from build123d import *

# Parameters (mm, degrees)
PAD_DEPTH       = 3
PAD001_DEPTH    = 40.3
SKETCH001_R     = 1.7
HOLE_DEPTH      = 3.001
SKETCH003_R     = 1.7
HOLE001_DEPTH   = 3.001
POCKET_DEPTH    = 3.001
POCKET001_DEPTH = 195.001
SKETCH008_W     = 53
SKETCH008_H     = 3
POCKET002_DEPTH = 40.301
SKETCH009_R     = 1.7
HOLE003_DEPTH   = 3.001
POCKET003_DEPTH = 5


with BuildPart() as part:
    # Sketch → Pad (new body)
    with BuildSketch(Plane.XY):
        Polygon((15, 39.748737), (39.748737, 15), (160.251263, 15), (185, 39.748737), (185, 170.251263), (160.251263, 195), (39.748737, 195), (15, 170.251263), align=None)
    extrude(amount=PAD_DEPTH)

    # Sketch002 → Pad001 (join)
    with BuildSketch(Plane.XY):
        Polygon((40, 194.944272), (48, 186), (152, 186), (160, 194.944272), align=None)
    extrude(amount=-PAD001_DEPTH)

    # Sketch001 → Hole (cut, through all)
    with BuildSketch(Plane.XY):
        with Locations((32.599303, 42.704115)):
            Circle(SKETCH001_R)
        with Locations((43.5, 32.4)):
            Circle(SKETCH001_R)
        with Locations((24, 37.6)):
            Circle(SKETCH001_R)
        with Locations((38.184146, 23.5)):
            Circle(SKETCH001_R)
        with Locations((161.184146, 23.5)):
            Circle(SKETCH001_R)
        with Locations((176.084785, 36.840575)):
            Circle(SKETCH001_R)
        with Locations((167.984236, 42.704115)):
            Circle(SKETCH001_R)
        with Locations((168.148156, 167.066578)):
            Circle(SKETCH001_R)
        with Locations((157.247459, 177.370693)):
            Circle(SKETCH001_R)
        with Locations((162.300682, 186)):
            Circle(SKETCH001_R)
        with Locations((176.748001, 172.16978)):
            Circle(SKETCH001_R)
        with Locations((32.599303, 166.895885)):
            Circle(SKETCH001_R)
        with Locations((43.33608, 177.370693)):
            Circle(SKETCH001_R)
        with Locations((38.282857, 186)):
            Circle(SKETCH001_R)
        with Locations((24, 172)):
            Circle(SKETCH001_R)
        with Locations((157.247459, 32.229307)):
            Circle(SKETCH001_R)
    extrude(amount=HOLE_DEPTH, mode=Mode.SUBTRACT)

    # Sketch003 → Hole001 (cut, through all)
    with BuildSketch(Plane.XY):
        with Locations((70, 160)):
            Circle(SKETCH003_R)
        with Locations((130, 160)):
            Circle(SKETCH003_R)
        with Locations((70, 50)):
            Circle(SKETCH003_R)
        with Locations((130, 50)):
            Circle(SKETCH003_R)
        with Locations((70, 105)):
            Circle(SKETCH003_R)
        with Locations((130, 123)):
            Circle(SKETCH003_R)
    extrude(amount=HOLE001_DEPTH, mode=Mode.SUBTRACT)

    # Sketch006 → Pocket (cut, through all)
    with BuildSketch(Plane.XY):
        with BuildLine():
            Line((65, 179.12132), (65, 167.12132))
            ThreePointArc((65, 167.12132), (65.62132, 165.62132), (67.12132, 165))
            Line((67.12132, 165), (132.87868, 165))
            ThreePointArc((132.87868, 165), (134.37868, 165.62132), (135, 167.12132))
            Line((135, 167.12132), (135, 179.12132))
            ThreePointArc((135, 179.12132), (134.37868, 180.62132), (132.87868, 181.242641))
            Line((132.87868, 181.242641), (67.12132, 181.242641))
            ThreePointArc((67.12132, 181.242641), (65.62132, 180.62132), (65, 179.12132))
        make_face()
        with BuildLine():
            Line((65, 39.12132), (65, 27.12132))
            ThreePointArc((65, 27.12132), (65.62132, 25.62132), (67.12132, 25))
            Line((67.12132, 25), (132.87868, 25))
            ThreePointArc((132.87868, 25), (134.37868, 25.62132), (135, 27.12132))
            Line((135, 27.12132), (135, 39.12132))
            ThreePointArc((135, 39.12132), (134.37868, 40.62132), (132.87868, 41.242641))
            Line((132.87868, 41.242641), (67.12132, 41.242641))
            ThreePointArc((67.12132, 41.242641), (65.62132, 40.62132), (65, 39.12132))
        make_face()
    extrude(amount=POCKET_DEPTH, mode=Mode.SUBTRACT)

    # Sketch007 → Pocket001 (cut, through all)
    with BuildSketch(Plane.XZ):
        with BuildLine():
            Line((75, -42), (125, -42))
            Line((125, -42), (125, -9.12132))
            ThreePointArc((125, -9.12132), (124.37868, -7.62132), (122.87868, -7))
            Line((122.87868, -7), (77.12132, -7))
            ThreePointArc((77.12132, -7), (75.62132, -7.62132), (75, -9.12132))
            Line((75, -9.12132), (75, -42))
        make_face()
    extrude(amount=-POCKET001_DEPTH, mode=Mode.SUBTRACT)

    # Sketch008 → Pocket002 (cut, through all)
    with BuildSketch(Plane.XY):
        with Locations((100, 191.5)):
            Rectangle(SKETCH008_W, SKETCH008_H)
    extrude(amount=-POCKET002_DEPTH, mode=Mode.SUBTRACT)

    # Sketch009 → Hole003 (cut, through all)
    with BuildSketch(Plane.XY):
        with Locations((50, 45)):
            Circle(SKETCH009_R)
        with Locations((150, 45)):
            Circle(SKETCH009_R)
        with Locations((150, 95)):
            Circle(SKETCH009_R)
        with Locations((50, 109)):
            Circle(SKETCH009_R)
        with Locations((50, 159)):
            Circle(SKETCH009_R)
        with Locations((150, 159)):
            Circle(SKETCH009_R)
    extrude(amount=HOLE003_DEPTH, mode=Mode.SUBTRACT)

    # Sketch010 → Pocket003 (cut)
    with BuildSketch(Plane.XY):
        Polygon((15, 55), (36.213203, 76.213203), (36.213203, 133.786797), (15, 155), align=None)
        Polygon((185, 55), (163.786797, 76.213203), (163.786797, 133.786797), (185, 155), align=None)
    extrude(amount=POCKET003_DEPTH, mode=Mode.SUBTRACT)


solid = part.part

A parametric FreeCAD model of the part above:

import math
import FreeCAD as App
import Part
import Sketcher
Q = App.Units.Quantity


def add_polygon(sketch, points):
    """Adds a closed chain of lines whose ends are joined by coincident constraints."""
    first, n = sketch.GeometryCount, len(points)
    for a, b in zip(points, points[1:] + points[:1]):
        sketch.addGeometry(Part.LineSegment(App.Vector(*a, 0), App.Vector(*b, 0)), False)
    for i in range(n):
        sketch.addConstraint(Sketcher.Constraint("Coincident", first + i, 2, first + (i + 1) % n, 1))

doc = App.newDocument("Part")
body = doc.addObject("PartDesign::Body", "Body")

# Sketch on XY plane
sketch1 = body.newObject("Sketcher::SketchObject", "Sketch")
sketch1.AttachmentSupport = (doc.getObject("XY_Plane"), [""])
sketch1.MapMode = "FlatFace"
add_polygon(sketch1, [(15, 40), (40, 15), (160, 15), (185, 40), (185, 170), (160, 195), (40, 195), (15, 170)])  # lines 0-7
sketch1.addConstraint(Sketcher.Constraint("Horizontal", 1))
sketch1.addConstraint(Sketcher.Constraint("Vertical", 3))
sketch1.addConstraint(Sketcher.Constraint("Horizontal", 5))
sketch1.addConstraint(Sketcher.Constraint("Vertical", 7))
sketch1.addConstraint(Sketcher.Constraint("Perpendicular", 0, 2))
sketch1.addConstraint(Sketcher.Constraint("Perpendicular", 2, 4))
sketch1.addConstraint(Sketcher.Constraint("Perpendicular", 4, 6))
sketch1.addConstraint(Sketcher.Constraint("Horizontal", 3, 2, 6, 2))
sketch1.addConstraint(Sketcher.Constraint("Horizontal", 2, 2, 7, 2))
sketch1.addConstraint(Sketcher.Constraint("Vertical", 1, 2, 4, 2))
sketch1.addConstraint(Sketcher.Constraint("Vertical", 0, 2, 5, 2))
sketch1.addConstraint(Sketcher.Constraint("Distance", 0, Q("35 mm")))
sketch1.addConstraint(Sketcher.Constraint("DistanceY", -1, 1, 0, 2, Q("15 mm")))
sketch1.addConstraint(Sketcher.Constraint("DistanceX", -1, 1, 2, 2, Q("185 mm")))
sketch1.addConstraint(Sketcher.Constraint("DistanceY", -1, 1, 4, 2, Q("195 mm")))
sketch1.addConstraint(Sketcher.Constraint("DistanceX", -1, 1, 6, 2, Q("15 mm")))
pad1 = body.newObject("PartDesign::Pad", "Pad")
pad1.Profile = sketch1
pad1.Length = 3

# Sketch on XY plane
sketch2 = body.newObject("Sketcher::SketchObject", "Sketch001")
sketch2.AttachmentSupport = (doc.getObject("XY_Plane"), [""])
sketch2.MapMode = "FlatFace"
add_polygon(sketch2, [(40, 195), (48, 186), (152, 186), (160, 195)])  # lines 0-3
sketch2.addConstraint(Sketcher.Constraint("Horizontal", 1))
sketch2.addConstraint(Sketcher.Constraint("Horizontal", 3))
sketch2.addConstraint(Sketcher.Constraint("Equal", 0, 2))
sketch2.addConstraint(Sketcher.Constraint("DistanceX", 1, 1, 1, 2, Q("104 mm")))
sketch2.addConstraint(Sketcher.Constraint("DistanceX", 3, 2, 3, 1, Q("120 mm")))
sketch2.addConstraint(Sketcher.Constraint("Distance", 0, Q("12 mm")))
sketch2.addConstraint(Sketcher.Constraint("DistanceX", -1, 1, 0, 2, Q("48 mm")))
sketch2.addConstraint(Sketcher.Constraint("DistanceY", -1, 1, 0, 2, Q("186 mm")))
pad2 = body.newObject("PartDesign::Pad", "Pad001")
pad2.Profile = sketch2
pad2.Length = 40.3
pad2.Reversed = True

# Sketch on XY plane
sketch3 = body.newObject("Sketcher::SketchObject", "Sketch002")
sketch3.AttachmentSupport = (doc.getObject("XY_Plane"), [""])
sketch3.MapMode = "FlatFace"
sketch3.addGeometry(Part.Circle(App.Vector(32.6, 42.7, 0), App.Vector(0, 0, 1), 1.7), False)
sketch3.addGeometry(Part.Circle(App.Vector(43.5, 32.4, 0), App.Vector(0, 0, 1), 1.7), False)
sketch3.addGeometry(Part.Circle(App.Vector(24, 37.6, 0), App.Vector(0, 0, 1), 1.7), False)
sketch3.addGeometry(Part.Circle(App.Vector(38.2, 23.5, 0), App.Vector(0, 0, 1), 1.7), False)
sketch3.addGeometry(Part.Circle(App.Vector(161.2, 23.5, 0), App.Vector(0, 0, 1), 1.7), False)
sketch3.addGeometry(Part.Circle(App.Vector(176.1, 36.8, 0), App.Vector(0, 0, 1), 1.7), False)
sketch3.addGeometry(Part.Circle(App.Vector(168, 42.7, 0), App.Vector(0, 0, 1), 1.7), False)
sketch3.addGeometry(Part.Circle(App.Vector(168.1, 167.1, 0), App.Vector(0, 0, 1), 1.7), False)
sketch3.addGeometry(Part.Circle(App.Vector(157.2, 177.4, 0), App.Vector(0, 0, 1), 1.7), False)
sketch3.addGeometry(Part.Circle(App.Vector(162.3, 186, 0), App.Vector(0, 0, 1), 1.7), False)
sketch3.addGeometry(Part.Circle(App.Vector(176.7, 172.2, 0), App.Vector(0, 0, 1), 1.7), False)
sketch3.addGeometry(Part.Circle(App.Vector(32.6, 166.9, 0), App.Vector(0, 0, 1), 1.7), False)
sketch3.addGeometry(Part.Circle(App.Vector(43.3, 177.4, 0), App.Vector(0, 0, 1), 1.7), False)
sketch3.addGeometry(Part.Circle(App.Vector(38.3, 186, 0), App.Vector(0, 0, 1), 1.7), False)
sketch3.addGeometry(Part.Circle(App.Vector(24, 172, 0), App.Vector(0, 0, 1), 1.7), False)
sketch3.addGeometry(Part.Circle(App.Vector(157.2, 32.2, 0), App.Vector(0, 0, 1), 1.7), False)
sketch3.addConstraint(Sketcher.Constraint("Equal", 0, 1))
sketch3.addConstraint(Sketcher.Constraint("Equal", 1, 2))
sketch3.addConstraint(Sketcher.Constraint("Equal", 2, 3))
sketch3.addConstraint(Sketcher.Constraint("Equal", 3, 4))
sketch3.addConstraint(Sketcher.Constraint("Equal", 4, 5))
sketch3.addConstraint(Sketcher.Constraint("Equal", 5, 6))
sketch3.addConstraint(Sketcher.Constraint("Equal", 6, 7))
sketch3.addConstraint(Sketcher.Constraint("Equal", 7, 8))
sketch3.addConstraint(Sketcher.Constraint("Equal", 8, 9))
sketch3.addConstraint(Sketcher.Constraint("Equal", 9, 10))
sketch3.addConstraint(Sketcher.Constraint("Equal", 10, 11))
sketch3.addConstraint(Sketcher.Constraint("Equal", 11, 12))
sketch3.addConstraint(Sketcher.Constraint("Equal", 12, 13))
sketch3.addConstraint(Sketcher.Constraint("Equal", 13, 14))
sketch3.addConstraint(Sketcher.Constraint("Equal", 14, 15))
sketch3.addConstraint(Sketcher.Constraint("Horizontal", 3, 3, 4, 3))
sketch3.addConstraint(Sketcher.Constraint("Horizontal", 0, 3, 6, 3))
sketch3.addConstraint(Sketcher.Constraint("Horizontal", 8, 3, 12, 3))
sketch3.addConstraint(Sketcher.Constraint("Horizontal", 9, 3, 13, 3))
sketch3.addConstraint(Sketcher.Constraint("Vertical", 0, 3, 11, 3))
sketch3.addConstraint(Sketcher.Constraint("Vertical", 2, 3, 14, 3))
sketch3.addConstraint(Sketcher.Constraint("Vertical", 8, 3, 15, 3))
sketch3.addConstraint(Sketcher.Constraint("Diameter", 0, Q("3.4 mm")))
sketch3.addConstraint(Sketcher.Constraint("DistanceX", -1, 1, 2, 3, Q("24 mm")))
sketch3.addConstraint(Sketcher.Constraint("DistanceY", -1, 1, 9, 3, Q("186 mm")))
sketch3.addConstraint(Sketcher.Constraint("DistanceY", -1, 1, 14, 3, Q("172 mm")))
sketch3.addConstraint(Sketcher.Constraint("DistanceX", 3, 3, 4, 3, Q("123 mm")))
sketch3.addConstraint(Sketcher.Constraint("DistanceX", -1, 1, 1, 3, Q("43.5 mm")))
sketch3.addConstraint(Sketcher.Constraint("DistanceY", -1, 1, 1, 3, Q("32.4 mm")))
sketch3.addConstraint(Sketcher.Constraint("DistanceY", -1, 1, 2, 3, Q("37.6 mm")))
sketch3.addConstraint(Sketcher.Constraint("DistanceY", -1, 1, 3, 3, Q("23.5 mm")))
sketch3.addConstraint(Sketcher.Constraint("DistanceX", -1, 1, 10, 3, Q("176.748001 mm")))
sketch3.addConstraint(Sketcher.Constraint("DistanceX", 12, 3, 9, 3, Q("118.964602 mm")))
sketch3.addConstraint(Sketcher.Constraint("DistanceX", 13, 3, 8, 3, Q("118.964602 mm")))
sketch3.addConstraint(Sketcher.Constraint("DistanceX", 13, 3, 7, 3, Q("129.865299 mm")))
sketch3.addConstraint(Sketcher.Constraint("DistanceY", -1, 1, 7, 3, Q("167.066578 mm")))
sketch3.addConstraint(Sketcher.Constraint("DistanceX", -1, 1, 8, 3, Q("157.247459 mm")))
sketch3.addConstraint(Sketcher.Constraint("DistanceX", -1, 1, 9, 3, Q("162.300682 mm")))
sketch3.addConstraint(Sketcher.Constraint("DistanceY", -1, 1, 10, 3, Q("172.16978 mm")))
sketch3.addConstraint(Sketcher.Constraint("DistanceX", 4, 3, 5, 3, Q("14.900639 mm")))
sketch3.addConstraint(Sketcher.Constraint("DistanceY", 5, 3, 0, 3, Q("5.86354 mm")))
sketch3.addConstraint(Sketcher.Constraint("DistanceX", 6, 3, 5, 3, Q("8.100549 mm")))
sketch3.addConstraint(Sketcher.Constraint("DistanceX", 6, 3, 7, 3, Q("0.16392 mm")))
sketch3.addConstraint(Sketcher.Constraint("DistanceY", 0, 3, 11, 3, Q("124.19177 mm")))
sketch3.addConstraint(Sketcher.Constraint("DistanceX", 11, 3, 9, 3, Q("129.701379 mm")))
sketch3.addConstraint(Sketcher.Constraint("DistanceY", 15, 3, 6, 3, Q("10.474808 mm")))
sketch3.addConstraint(Sketcher.Constraint("DistanceY", -1, 1, 0, 3, Q("42.704115 mm")))
sketch3.addConstraint(Sketcher.Constraint("DistanceY", -1, 1, 8, 3, Q("177.370693 mm")))
pocket1 = body.newObject("PartDesign::Pocket", "Pocket")
pocket1.Profile = sketch3
pocket1.Type = "ThroughAll"
pocket1.Reversed = True

# Sketch on XY plane
sketch4 = body.newObject("Sketcher::SketchObject", "Sketch003")
sketch4.AttachmentSupport = (doc.getObject("XY_Plane"), [""])
sketch4.MapMode = "FlatFace"
sketch4.addGeometry(Part.Circle(App.Vector(70, 160, 0), App.Vector(0, 0, 1), 1.7), False)
sketch4.addGeometry(Part.Circle(App.Vector(130, 160, 0), App.Vector(0, 0, 1), 1.7), False)
sketch4.addGeometry(Part.Circle(App.Vector(70, 50, 0), App.Vector(0, 0, 1), 1.7), False)
sketch4.addGeometry(Part.Circle(App.Vector(130, 50, 0), App.Vector(0, 0, 1), 1.7), False)
sketch4.addGeometry(Part.Circle(App.Vector(70, 105, 0), App.Vector(0, 0, 1), 1.7), False)
sketch4.addGeometry(Part.Circle(App.Vector(130, 123, 0), App.Vector(0, 0, 1), 1.7), False)
sketch4.addConstraint(Sketcher.Constraint("Equal", 0, 1))
sketch4.addConstraint(Sketcher.Constraint("Equal", 1, 2))
sketch4.addConstraint(Sketcher.Constraint("Equal", 2, 3))
sketch4.addConstraint(Sketcher.Constraint("Equal", 3, 4))
sketch4.addConstraint(Sketcher.Constraint("Equal", 4, 5))
sketch4.addConstraint(Sketcher.Constraint("Horizontal", 0, 3, 1, 3))
sketch4.addConstraint(Sketcher.Constraint("Horizontal", 2, 3, 3, 3))
sketch4.addConstraint(Sketcher.Constraint("Vertical", 0, 3, 2, 3))
sketch4.addConstraint(Sketcher.Constraint("Vertical", 1, 3, 3, 3))
sketch4.addConstraint(Sketcher.Constraint("Vertical", 2, 3, 4, 3))
sketch4.addConstraint(Sketcher.Constraint("Vertical", 3, 3, 5, 3))
sketch4.addConstraint(Sketcher.Constraint("Diameter", 0, Q("3.4 mm")))
sketch4.addConstraint(Sketcher.Constraint("DistanceX", -1, 1, 0, 3, Q("70 mm")))
sketch4.addConstraint(Sketcher.Constraint("DistanceY", -1, 1, 0, 3, Q("160 mm")))
sketch4.addConstraint(Sketcher.Constraint("DistanceX", -1, 1, 1, 3, Q("130 mm")))
sketch4.addConstraint(Sketcher.Constraint("DistanceY", -1, 1, 2, 3, Q("50 mm")))
sketch4.addConstraint(Sketcher.Constraint("DistanceY", -1, 1, 4, 3, Q("105 mm")))
sketch4.addConstraint(Sketcher.Constraint("DistanceY", -1, 1, 5, 3, Q("123 mm")))
pocket2 = body.newObject("PartDesign::Pocket", "Pocket001")
pocket2.Profile = sketch4
pocket2.Type = "ThroughAll"
pocket2.Reversed = True

# Sketch on XY plane
sketch5 = body.newObject("Sketcher::SketchObject", "Sketch004")
sketch5.AttachmentSupport = (doc.getObject("XY_Plane"), [""])
sketch5.MapMode = "FlatFace"
sketch5.addGeometry(Part.LineSegment(App.Vector(65, 179.1, 0), App.Vector(65, 167.1, 0)), False)
sketch5.addGeometry(Part.ArcOfCircle(Part.Circle(App.Vector(67.1, 167.1, 0), App.Vector(0, 0, 1), 2.1), math.radians(180), math.radians(270)), False)
sketch5.addGeometry(Part.LineSegment(App.Vector(67.1, 165, 0), App.Vector(132.9, 165, 0)), False)
sketch5.addGeometry(Part.ArcOfCircle(Part.Circle(App.Vector(132.9, 167.1, 0), App.Vector(0, 0, 1), 2.1), math.radians(-90), math.radians(0)), False)
sketch5.addGeometry(Part.LineSegment(App.Vector(135, 167.1, 0), App.Vector(135, 179.1, 0)), False)
sketch5.addGeometry(Part.ArcOfCircle(Part.Circle(App.Vector(132.9, 179.1, 0), App.Vector(0, 0, 1), 2.1), math.radians(0), math.radians(90)), False)
sketch5.addGeometry(Part.LineSegment(App.Vector(132.9, 181.2, 0), App.Vector(67.1, 181.2, 0)), False)
sketch5.addGeometry(Part.ArcOfCircle(Part.Circle(App.Vector(67.1, 179.1, 0), App.Vector(0, 0, 1), 2.1), math.radians(90), math.radians(180)), False)
sketch5.addGeometry(Part.LineSegment(App.Vector(65, 39.1, 0), App.Vector(65, 27.1, 0)), False)
sketch5.addGeometry(Part.ArcOfCircle(Part.Circle(App.Vector(67.1, 27.1, 0), App.Vector(0, 0, 1), 2.1), math.radians(180), math.radians(270)), False)
sketch5.addGeometry(Part.LineSegment(App.Vector(67.1, 25, 0), App.Vector(132.9, 25, 0)), False)
sketch5.addGeometry(Part.ArcOfCircle(Part.Circle(App.Vector(132.9, 27.1, 0), App.Vector(0, 0, 1), 2.1), math.radians(-90), math.radians(0)), False)
sketch5.addGeometry(Part.LineSegment(App.Vector(135, 27.1, 0), App.Vector(135, 39.1, 0)), False)
sketch5.addGeometry(Part.ArcOfCircle(Part.Circle(App.Vector(132.9, 39.1, 0), App.Vector(0, 0, 1), 2.1), math.radians(0), math.radians(90)), False)
sketch5.addGeometry(Part.LineSegment(App.Vector(132.9, 41.2, 0), App.Vector(67.1, 41.2, 0)), False)
sketch5.addGeometry(Part.ArcOfCircle(Part.Circle(App.Vector(67.1, 39.1, 0), App.Vector(0, 0, 1), 2.1), math.radians(90), math.radians(180)), False)
sketch5.addConstraint(Sketcher.Constraint("Tangent", 0, 2, 1, 1))
sketch5.addConstraint(Sketcher.Constraint("Tangent", 1, 2, 2, 1))
sketch5.addConstraint(Sketcher.Constraint("Tangent", 2, 2, 3, 1))
sketch5.addConstraint(Sketcher.Constraint("Tangent", 3, 2, 4, 1))
sketch5.addConstraint(Sketcher.Constraint("Tangent", 4, 2, 5, 1))
sketch5.addConstraint(Sketcher.Constraint("Tangent", 5, 2, 6, 1))
sketch5.addConstraint(Sketcher.Constraint("Tangent", 6, 2, 7, 1))
sketch5.addConstraint(Sketcher.Constraint("Tangent", 7, 2, 0, 1))
sketch5.addConstraint(Sketcher.Constraint("Tangent", 8, 2, 9, 1))
sketch5.addConstraint(Sketcher.Constraint("Tangent", 9, 2, 10, 1))
sketch5.addConstraint(Sketcher.Constraint("Tangent", 10, 2, 11, 1))
sketch5.addConstraint(Sketcher.Constraint("Tangent", 11, 2, 12, 1))
sketch5.addConstraint(Sketcher.Constraint("Tangent", 12, 2, 13, 1))
sketch5.addConstraint(Sketcher.Constraint("Tangent", 13, 2, 14, 1))
sketch5.addConstraint(Sketcher.Constraint("Tangent", 14, 2, 15, 1))
sketch5.addConstraint(Sketcher.Constraint("Tangent", 15, 2, 8, 1))
sketch5.addConstraint(Sketcher.Constraint("Vertical", 0))
sketch5.addConstraint(Sketcher.Constraint("Horizontal", 2))
sketch5.addConstraint(Sketcher.Constraint("Vertical", 4))
sketch5.addConstraint(Sketcher.Constraint("Horizontal", 6))
sketch5.addConstraint(Sketcher.Constraint("Vertical", 8))
sketch5.addConstraint(Sketcher.Constraint("Horizontal", 10))
sketch5.addConstraint(Sketcher.Constraint("Vertical", 12))
sketch5.addConstraint(Sketcher.Constraint("Horizontal", 14))
sketch5.addConstraint(Sketcher.Constraint("Equal", 1, 3))
sketch5.addConstraint(Sketcher.Constraint("Equal", 3, 5))
sketch5.addConstraint(Sketcher.Constraint("Equal", 5, 7))
sketch5.addConstraint(Sketcher.Constraint("Equal", 7, 9))
sketch5.addConstraint(Sketcher.Constraint("Equal", 9, 11))
sketch5.addConstraint(Sketcher.Constraint("Equal", 11, 13))
sketch5.addConstraint(Sketcher.Constraint("Equal", 13, 15))
sketch5.addConstraint(Sketcher.Constraint("Vertical", 7, 3, 9, 3))
sketch5.addConstraint(Sketcher.Constraint("Vertical", 5, 3, 11, 3))
sketch5.addConstraint(Sketcher.Constraint("Equal", 4, 8))
sketch5.addConstraint(Sketcher.Constraint("DistanceY", 0, 2, 0, 1, Q("12 mm")))
sketch5.addConstraint(Sketcher.Constraint("DistanceX", -1, 1, 0, 2, Q("65 mm")))
sketch5.addConstraint(Sketcher.Constraint("DistanceY", -1, 1, 1, 2, Q("165 mm")))
sketch5.addConstraint(Sketcher.Constraint("DistanceX", -1, 1, 3, 2, Q("135 mm")))
sketch5.addConstraint(Sketcher.Constraint("DistanceY", -1, 1, 9, 2, Q("25 mm")))
sketch5.addConstraint(Sketcher.Constraint("Radius", 1, Q("2.121319 mm")))
pocket3 = body.newObject("PartDesign::Pocket", "Pocket002")
pocket3.Profile = sketch5
pocket3.Type = "ThroughAll"
pocket3.Reversed = True

# Sketch on XZ plane
sketch6 = body.newObject("Sketcher::SketchObject", "Sketch005")
sketch6.AttachmentSupport = (doc.getObject("XZ_Plane"), [""])
sketch6.MapMode = "FlatFace"
sketch6.addGeometry(Part.LineSegment(App.Vector(75, -42, 0), App.Vector(125, -42, 0)), False)
sketch6.addGeometry(Part.LineSegment(App.Vector(125, -42, 0), App.Vector(125, -9.1, 0)), False)
sketch6.addGeometry(Part.ArcOfCircle(Part.Circle(App.Vector(122.9, -9.1, 0), App.Vector(0, 0, 1), 2.1), math.radians(0), math.radians(90)), False)
sketch6.addGeometry(Part.LineSegment(App.Vector(122.9, -7, 0), App.Vector(77.1, -7, 0)), False)
sketch6.addGeometry(Part.ArcOfCircle(Part.Circle(App.Vector(77.1, -9.1, 0), App.Vector(0, 0, 1), 2.1), math.radians(90), math.radians(180)), False)
sketch6.addGeometry(Part.LineSegment(App.Vector(75, -9.1, 0), App.Vector(75, -42, 0)), False)
sketch6.addConstraint(Sketcher.Constraint("Coincident", 0, 2, 1, 1))
sketch6.addConstraint(Sketcher.Constraint("Tangent", 1, 2, 2, 1))
sketch6.addConstraint(Sketcher.Constraint("Tangent", 2, 2, 3, 1))
sketch6.addConstraint(Sketcher.Constraint("Tangent", 3, 2, 4, 1))
sketch6.addConstraint(Sketcher.Constraint("Tangent", 4, 2, 5, 1))
sketch6.addConstraint(Sketcher.Constraint("Coincident", 5, 2, 0, 1))
sketch6.addConstraint(Sketcher.Constraint("Horizontal", 0))
sketch6.addConstraint(Sketcher.Constraint("Vertical", 1))
sketch6.addConstraint(Sketcher.Constraint("Horizontal", 3))
sketch6.addConstraint(Sketcher.Constraint("Vertical", 5))
sketch6.addConstraint(Sketcher.Constraint("Equal", 2, 4))
sketch6.addConstraint(Sketcher.Constraint("DistanceX", 0, 1, 0, 2, Q("50 mm")))
sketch6.addConstraint(Sketcher.Constraint("DistanceX", -1, 1, 0, 2, Q("125 mm")))
sketch6.addConstraint(Sketcher.Constraint("DistanceY", 0, 2, -1, 1, Q("42 mm")))
sketch6.addConstraint(Sketcher.Constraint("DistanceY", 2, 2, -1, 1, Q("7 mm")))
sketch6.addConstraint(Sketcher.Constraint("Radius", 2, Q("2.121319 mm")))
pocket4 = body.newObject("PartDesign::Pocket", "Pocket003")
pocket4.Profile = sketch6
pocket4.Type = "ThroughAll"

# Sketch on XY plane
sketch7 = body.newObject("Sketcher::SketchObject", "Sketch006")
sketch7.AttachmentSupport = (doc.getObject("XY_Plane"), [""])
sketch7.MapMode = "FlatFace"
add_polygon(sketch7, [(73.5, 193), (73.5, 190), (126.5, 190), (126.5, 193)])  # lines 0-3
sketch7.addConstraint(Sketcher.Constraint("Vertical", 0))
sketch7.addConstraint(Sketcher.Constraint("Horizontal", 1))
sketch7.addConstraint(Sketcher.Constraint("Vertical", 2))
sketch7.addConstraint(Sketcher.Constraint("Horizontal", 3))
sketch7.addConstraint(Sketcher.Constraint("DistanceX", 1, 1, 1, 2, Q("53 mm")))
sketch7.addConstraint(Sketcher.Constraint("DistanceY", 0, 2, 0, 1, Q("3 mm")))
sketch7.addConstraint(Sketcher.Constraint("DistanceY", -1, 1, 0, 2, Q("190 mm")))
sketch7.addConstraint(Sketcher.Constraint("DistanceX", -1, 1, 0, 2, Q("73.5 mm")))
pocket5 = body.newObject("PartDesign::Pocket", "Pocket004")
pocket5.Profile = sketch7
pocket5.Type = "ThroughAll"

# Sketch on XY plane
sketch8 = body.newObject("Sketcher::SketchObject", "Sketch007")
sketch8.AttachmentSupport = (doc.getObject("XY_Plane"), [""])
sketch8.MapMode = "FlatFace"
sketch8.addGeometry(Part.Circle(App.Vector(50, 45, 0), App.Vector(0, 0, 1), 1.7), False)
sketch8.addGeometry(Part.Circle(App.Vector(150, 45, 0), App.Vector(0, 0, 1), 1.7), False)
sketch8.addGeometry(Part.Circle(App.Vector(150, 95, 0), App.Vector(0, 0, 1), 1.7), False)
sketch8.addGeometry(Part.Circle(App.Vector(50, 109, 0), App.Vector(0, 0, 1), 1.7), False)
sketch8.addGeometry(Part.Circle(App.Vector(50, 159, 0), App.Vector(0, 0, 1), 1.7), False)
sketch8.addGeometry(Part.Circle(App.Vector(150, 159, 0), App.Vector(0, 0, 1), 1.7), False)
sketch8.addConstraint(Sketcher.Constraint("Equal", 0, 1))
sketch8.addConstraint(Sketcher.Constraint("Equal", 1, 2))
sketch8.addConstraint(Sketcher.Constraint("Equal", 2, 3))
sketch8.addConstraint(Sketcher.Constraint("Equal", 3, 4))
sketch8.addConstraint(Sketcher.Constraint("Equal", 4, 5))
sketch8.addConstraint(Sketcher.Constraint("Horizontal", 0, 3, 1, 3))
sketch8.addConstraint(Sketcher.Constraint("Horizontal", 4, 3, 5, 3))
sketch8.addConstraint(Sketcher.Constraint("Vertical", 1, 3, 2, 3))
sketch8.addConstraint(Sketcher.Constraint("Vertical", 0, 3, 3, 3))
sketch8.addConstraint(Sketcher.Constraint("Vertical", 3, 3, 4, 3))
sketch8.addConstraint(Sketcher.Constraint("Vertical", 2, 3, 5, 3))
sketch8.addConstraint(Sketcher.Constraint("Diameter", 0, Q("3.4 mm")))
sketch8.addConstraint(Sketcher.Constraint("DistanceX", -1, 1, 0, 3, Q("50 mm")))
sketch8.addConstraint(Sketcher.Constraint("DistanceY", -1, 1, 0, 3, Q("45 mm")))
sketch8.addConstraint(Sketcher.Constraint("DistanceX", -1, 1, 1, 3, Q("150 mm")))
sketch8.addConstraint(Sketcher.Constraint("DistanceY", -1, 1, 2, 3, Q("95 mm")))
sketch8.addConstraint(Sketcher.Constraint("DistanceY", -1, 1, 3, 3, Q("109 mm")))
sketch8.addConstraint(Sketcher.Constraint("DistanceY", -1, 1, 4, 3, Q("159 mm")))
pocket6 = body.newObject("PartDesign::Pocket", "Pocket005")
pocket6.Profile = sketch8
pocket6.Type = "ThroughAll"
pocket6.Reversed = True

# Sketch on XY plane
sketch9 = body.newObject("Sketcher::SketchObject", "Sketch008")
sketch9.AttachmentSupport = (doc.getObject("XY_Plane"), [""])
sketch9.MapMode = "FlatFace"
add_polygon(sketch9, [(15, 55), (36, 76), (36, 134), (15, 155)])  # lines 0-3
add_polygon(sketch9, [(164, 76), (185, 55), (185, 155), (164, 134)])  # lines 4-7
sketch9.addConstraint(Sketcher.Constraint("Vertical", 1))
sketch9.addConstraint(Sketcher.Constraint("Vertical", 3))
sketch9.addConstraint(Sketcher.Constraint("Vertical", 5))
sketch9.addConstraint(Sketcher.Constraint("Vertical", 7))
sketch9.addConstraint(Sketcher.Constraint("Perpendicular", 0, 2))
sketch9.addConstraint(Sketcher.Constraint("Parallel", 2, 4))
sketch9.addConstraint(Sketcher.Constraint("Perpendicular", 4, 6))
sketch9.addConstraint(Sketcher.Constraint("Horizontal", 3, 2, 4, 2))
sketch9.addConstraint(Sketcher.Constraint("Horizontal", 2, 2, 5, 2))
sketch9.addConstraint(Sketcher.Constraint("Horizontal", 1, 2, 6, 2))
sketch9.addConstraint(Sketcher.Constraint("Horizontal", 0, 2, 7, 2))
sketch9.addConstraint(Sketcher.Constraint("DistanceY", 3, 2, 3, 1, Q("100 mm")))
sketch9.addConstraint(Sketcher.Constraint("Distance", 0, Q("29.999999 mm")))
sketch9.addConstraint(Sketcher.Constraint("DistanceX", -1, 1, 2, 2, Q("15 mm")))
sketch9.addConstraint(Sketcher.Constraint("DistanceY", -1, 1, 2, 2, Q("155 mm")))
sketch9.addConstraint(Sketcher.Constraint("DistanceX", -1, 1, 4, 2, Q("185 mm")))
pocket7 = body.newObject("PartDesign::Pocket", "Pocket006")
pocket7.Profile = sketch9
pocket7.Length = 5
pocket7.Reversed = True

doc.recompute()
